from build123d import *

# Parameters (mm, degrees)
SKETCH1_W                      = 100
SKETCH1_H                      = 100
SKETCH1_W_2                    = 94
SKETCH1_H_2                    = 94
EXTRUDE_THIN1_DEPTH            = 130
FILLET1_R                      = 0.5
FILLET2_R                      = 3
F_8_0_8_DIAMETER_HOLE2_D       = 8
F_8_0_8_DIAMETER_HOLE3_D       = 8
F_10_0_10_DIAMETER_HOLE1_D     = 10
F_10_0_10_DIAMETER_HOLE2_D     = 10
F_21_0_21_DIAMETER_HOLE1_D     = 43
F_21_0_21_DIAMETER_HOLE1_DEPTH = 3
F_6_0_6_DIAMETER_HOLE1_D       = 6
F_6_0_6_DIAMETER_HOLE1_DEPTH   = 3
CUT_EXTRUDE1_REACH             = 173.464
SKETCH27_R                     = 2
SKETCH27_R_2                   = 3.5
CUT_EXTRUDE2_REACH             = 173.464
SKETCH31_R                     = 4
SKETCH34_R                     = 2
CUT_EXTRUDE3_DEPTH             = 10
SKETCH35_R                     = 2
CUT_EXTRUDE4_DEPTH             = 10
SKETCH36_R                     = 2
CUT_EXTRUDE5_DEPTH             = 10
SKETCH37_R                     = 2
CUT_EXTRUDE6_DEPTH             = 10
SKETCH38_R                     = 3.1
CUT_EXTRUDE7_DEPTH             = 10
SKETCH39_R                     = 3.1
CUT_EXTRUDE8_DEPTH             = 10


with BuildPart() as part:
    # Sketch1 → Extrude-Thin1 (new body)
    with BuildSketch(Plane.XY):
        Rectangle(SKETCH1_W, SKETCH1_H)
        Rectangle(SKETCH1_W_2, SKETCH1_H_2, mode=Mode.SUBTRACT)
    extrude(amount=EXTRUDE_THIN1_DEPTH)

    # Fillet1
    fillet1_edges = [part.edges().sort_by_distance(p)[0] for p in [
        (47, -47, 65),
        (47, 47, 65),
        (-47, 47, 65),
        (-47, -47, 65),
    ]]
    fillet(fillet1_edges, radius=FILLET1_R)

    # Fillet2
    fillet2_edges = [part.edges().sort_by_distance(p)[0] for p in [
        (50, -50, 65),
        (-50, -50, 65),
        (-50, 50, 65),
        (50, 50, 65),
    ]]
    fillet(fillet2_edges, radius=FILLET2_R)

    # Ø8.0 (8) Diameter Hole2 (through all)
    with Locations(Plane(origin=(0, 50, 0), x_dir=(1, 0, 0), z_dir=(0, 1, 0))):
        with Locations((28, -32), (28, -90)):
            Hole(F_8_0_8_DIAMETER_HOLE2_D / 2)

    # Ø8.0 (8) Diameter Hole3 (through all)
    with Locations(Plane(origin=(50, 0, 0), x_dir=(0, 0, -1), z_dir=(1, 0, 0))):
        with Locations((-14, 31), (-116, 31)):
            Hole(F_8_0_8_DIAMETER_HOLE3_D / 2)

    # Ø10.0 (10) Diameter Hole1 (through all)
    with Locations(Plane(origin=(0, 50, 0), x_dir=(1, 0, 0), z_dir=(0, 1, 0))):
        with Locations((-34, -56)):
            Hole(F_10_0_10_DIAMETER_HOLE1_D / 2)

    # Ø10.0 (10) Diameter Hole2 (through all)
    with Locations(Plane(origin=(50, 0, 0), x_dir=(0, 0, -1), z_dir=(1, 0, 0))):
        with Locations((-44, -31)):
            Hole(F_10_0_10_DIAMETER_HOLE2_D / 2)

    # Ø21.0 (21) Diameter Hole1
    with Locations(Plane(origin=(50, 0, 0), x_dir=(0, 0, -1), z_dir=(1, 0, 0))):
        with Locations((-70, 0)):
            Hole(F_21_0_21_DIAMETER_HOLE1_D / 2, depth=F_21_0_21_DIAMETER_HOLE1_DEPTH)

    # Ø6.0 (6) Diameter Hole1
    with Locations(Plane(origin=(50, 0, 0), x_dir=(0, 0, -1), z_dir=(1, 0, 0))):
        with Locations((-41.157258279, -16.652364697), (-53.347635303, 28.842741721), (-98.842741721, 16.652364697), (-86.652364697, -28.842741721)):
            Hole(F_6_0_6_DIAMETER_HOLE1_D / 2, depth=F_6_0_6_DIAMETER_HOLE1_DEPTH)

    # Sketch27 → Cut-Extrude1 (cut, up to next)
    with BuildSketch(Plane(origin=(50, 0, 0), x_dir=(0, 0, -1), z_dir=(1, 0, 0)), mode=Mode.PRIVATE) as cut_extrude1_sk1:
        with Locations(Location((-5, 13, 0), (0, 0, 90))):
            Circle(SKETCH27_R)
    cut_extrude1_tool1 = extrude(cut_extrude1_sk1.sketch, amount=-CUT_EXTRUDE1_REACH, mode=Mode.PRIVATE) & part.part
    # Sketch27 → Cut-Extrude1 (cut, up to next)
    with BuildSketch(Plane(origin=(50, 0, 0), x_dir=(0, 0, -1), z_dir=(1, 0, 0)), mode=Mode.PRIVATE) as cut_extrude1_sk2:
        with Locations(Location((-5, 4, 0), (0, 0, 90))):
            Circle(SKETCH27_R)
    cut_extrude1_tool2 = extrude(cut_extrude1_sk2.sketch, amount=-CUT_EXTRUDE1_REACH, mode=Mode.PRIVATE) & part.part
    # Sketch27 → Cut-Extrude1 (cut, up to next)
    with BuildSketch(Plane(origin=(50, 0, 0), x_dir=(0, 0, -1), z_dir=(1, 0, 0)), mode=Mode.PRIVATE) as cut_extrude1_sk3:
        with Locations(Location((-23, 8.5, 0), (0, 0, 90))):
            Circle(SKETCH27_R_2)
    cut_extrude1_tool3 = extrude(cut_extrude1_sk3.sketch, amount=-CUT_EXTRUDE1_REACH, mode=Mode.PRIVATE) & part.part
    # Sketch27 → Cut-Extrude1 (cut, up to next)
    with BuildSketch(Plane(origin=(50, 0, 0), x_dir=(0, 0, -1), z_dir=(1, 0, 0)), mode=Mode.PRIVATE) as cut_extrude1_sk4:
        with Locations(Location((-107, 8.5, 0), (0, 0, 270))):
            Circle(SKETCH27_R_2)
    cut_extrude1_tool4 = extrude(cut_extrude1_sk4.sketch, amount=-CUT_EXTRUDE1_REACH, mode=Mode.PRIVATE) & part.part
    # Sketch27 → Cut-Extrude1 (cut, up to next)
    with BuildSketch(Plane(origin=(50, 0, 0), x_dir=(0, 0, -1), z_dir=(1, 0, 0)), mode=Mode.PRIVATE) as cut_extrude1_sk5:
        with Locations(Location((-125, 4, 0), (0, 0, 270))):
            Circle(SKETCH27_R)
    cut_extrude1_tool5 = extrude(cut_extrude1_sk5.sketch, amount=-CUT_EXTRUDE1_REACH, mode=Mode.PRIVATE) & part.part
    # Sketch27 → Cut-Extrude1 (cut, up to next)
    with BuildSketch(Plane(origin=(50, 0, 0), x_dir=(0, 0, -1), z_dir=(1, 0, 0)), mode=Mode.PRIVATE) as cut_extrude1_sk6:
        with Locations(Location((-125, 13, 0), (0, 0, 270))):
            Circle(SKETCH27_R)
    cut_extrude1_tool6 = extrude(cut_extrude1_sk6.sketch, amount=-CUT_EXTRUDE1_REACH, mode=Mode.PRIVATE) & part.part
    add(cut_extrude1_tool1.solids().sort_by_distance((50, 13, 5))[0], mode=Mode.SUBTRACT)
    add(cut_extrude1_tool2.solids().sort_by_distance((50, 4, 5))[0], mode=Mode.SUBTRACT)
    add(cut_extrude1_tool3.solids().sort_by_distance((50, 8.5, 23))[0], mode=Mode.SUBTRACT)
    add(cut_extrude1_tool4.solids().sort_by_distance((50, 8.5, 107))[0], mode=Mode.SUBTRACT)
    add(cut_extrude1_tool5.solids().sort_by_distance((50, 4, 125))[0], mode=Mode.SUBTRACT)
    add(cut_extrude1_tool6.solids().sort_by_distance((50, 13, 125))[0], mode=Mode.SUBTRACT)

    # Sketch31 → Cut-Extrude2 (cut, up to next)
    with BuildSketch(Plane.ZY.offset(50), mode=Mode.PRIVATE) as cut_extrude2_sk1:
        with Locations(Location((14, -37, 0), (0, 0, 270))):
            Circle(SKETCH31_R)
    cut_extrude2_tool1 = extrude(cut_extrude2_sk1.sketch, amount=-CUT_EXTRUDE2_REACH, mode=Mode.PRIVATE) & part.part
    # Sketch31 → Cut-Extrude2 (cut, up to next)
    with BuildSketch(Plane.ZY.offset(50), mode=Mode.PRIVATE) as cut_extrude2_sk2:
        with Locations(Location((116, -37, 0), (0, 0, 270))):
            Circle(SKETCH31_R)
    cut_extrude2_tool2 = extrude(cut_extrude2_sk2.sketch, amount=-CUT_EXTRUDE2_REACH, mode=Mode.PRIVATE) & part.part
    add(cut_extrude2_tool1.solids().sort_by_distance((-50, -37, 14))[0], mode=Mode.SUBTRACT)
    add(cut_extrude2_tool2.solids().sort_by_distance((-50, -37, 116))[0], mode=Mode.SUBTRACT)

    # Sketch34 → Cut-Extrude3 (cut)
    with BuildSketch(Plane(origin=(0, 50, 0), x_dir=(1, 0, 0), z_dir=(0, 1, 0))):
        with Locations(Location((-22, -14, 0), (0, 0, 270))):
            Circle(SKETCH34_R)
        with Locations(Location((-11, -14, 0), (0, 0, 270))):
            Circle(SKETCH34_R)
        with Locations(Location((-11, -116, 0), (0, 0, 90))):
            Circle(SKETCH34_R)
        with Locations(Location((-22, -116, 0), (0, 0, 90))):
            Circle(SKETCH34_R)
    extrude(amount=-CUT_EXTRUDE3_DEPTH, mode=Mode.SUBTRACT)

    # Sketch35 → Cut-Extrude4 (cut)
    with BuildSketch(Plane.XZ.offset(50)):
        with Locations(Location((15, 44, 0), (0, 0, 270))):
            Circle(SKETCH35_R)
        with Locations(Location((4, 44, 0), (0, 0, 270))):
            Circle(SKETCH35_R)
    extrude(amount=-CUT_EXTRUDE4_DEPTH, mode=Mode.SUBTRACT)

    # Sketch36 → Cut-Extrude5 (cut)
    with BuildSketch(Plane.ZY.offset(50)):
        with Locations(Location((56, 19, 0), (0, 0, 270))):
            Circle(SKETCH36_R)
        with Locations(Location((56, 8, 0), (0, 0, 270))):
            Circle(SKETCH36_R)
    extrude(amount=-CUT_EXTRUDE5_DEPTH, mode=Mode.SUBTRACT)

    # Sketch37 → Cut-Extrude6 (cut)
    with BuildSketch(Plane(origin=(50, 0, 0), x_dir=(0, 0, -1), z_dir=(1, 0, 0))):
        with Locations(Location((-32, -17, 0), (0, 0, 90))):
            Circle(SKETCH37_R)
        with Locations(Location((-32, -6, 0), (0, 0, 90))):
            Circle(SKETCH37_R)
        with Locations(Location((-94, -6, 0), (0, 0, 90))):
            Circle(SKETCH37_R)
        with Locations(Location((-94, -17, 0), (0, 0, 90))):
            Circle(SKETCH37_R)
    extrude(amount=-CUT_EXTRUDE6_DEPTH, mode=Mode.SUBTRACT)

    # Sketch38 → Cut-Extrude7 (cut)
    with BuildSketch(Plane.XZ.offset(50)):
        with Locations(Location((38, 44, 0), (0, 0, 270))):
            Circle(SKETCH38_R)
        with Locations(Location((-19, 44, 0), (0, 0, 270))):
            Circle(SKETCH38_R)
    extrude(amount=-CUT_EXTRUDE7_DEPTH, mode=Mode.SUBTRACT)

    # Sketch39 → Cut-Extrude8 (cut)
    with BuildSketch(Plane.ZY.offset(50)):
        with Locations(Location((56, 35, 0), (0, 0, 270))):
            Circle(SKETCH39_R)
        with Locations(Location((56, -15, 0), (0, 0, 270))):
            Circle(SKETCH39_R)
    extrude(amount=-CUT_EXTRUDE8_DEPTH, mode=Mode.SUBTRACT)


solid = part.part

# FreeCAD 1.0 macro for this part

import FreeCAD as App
import Part
import Sketcher


def edges_at(feature, points):
    """Names of the edges that pass closest to the given points."""
    edges = feature.Shape.Edges
    near = lambda p: min(range(len(edges)), key=lambda i: edges[i].distToShape(Part.Vertex(*p))[0])
    return sorted({f"Edge{near(p) + 1}" for p in points})


def add_polygon(sketch, points):
    """Adds a closed chain of lines whose ends are joined by coincident constraints."""
    first, n = sketch.GeometryCount, len(points)
    for a, b in zip(points, points[1:] + points[:1]):
        sketch.addGeometry(Part.LineSegment(App.Vector(*a, 0), App.Vector(*b, 0)), False)
    for i in range(n):
        sketch.addConstraint(Sketcher.Constraint("Coincident", first + i, 2, first + (i + 1) % n, 1))

doc = App.newDocument("Part")
body = doc.addObject("PartDesign::Body", "Body")

# Sketch on XY plane
sketch1 = body.newObject("Sketcher::SketchObject", "Sketch")
sketch1.AttachmentSupport = (doc.getObject("XY_Plane"), [""])
sketch1.MapMode = "FlatFace"
add_polygon(sketch1, [(-50, 50), (-50, -50), (50, -50), (50, 50)])  # lines 0-3
add_polygon(sketch1, [(47, -47), (-47, -47), (-47, 47), (47, 47)])  # lines 4-7
sketch1.addConstraint([
    Sketcher.Constraint("Vertical", 0),
    Sketcher.Constraint("Horizontal", 1),
    Sketcher.Constraint("Vertical", 2),
    Sketcher.Constraint("Horizontal", 3),
    Sketcher.Constraint("Horizontal", 4),
    Sketcher.Constraint("Vertical", 5),
    Sketcher.Constraint("Horizontal", 6),
    Sketcher.Constraint("Vertical", 7),
    Sketcher.Constraint("Symmetric", 0, 2, 2, 2, -1, 1),
    Sketcher.Constraint("Symmetric", 4, 2, 6, 2, -1, 1),
    Sketcher.Constraint("Equal", 3, 0),
    Sketcher.Constraint("Equal", 6, 5),
    Sketcher.Constraint("DistanceX", 1, 1, 1, 2, 100.0),
    Sketcher.Constraint("DistanceX", 4, 2, 4, 1, 94.0),
])
pad1 = body.newObject("PartDesign::Pad", "Pad")
pad1.Profile = sketch1
pad1.Length = 130
doc.recompute()

fillet = body.newObject("PartDesign::Fillet", "Fillet")
fillet.Base = (pad1, edges_at(pad1, [
    (47, -47, 65),
    (47, 47, 65),
    (-47, 47, 65),
    (-47, -47, 65),
]))
fillet.Radius = 0.5
doc.recompute()

fillet2 = body.newObject("PartDesign::Fillet", "Fillet001")
fillet2.Base = (fillet, edges_at(fillet, [
    (50, -50, 65),
    (-50, -50, 65),
    (-50, 50, 65),
    (50, 50, 65),
]))
fillet2.Radius = 3

# Sketch on XZ plane
sketch2 = body.newObject("Sketcher::SketchObject", "Sketch001")
sketch2.AttachmentSupport = (doc.getObject("XZ_Plane"), [""])
sketch2.MapMode = "FlatFace"
sketch2.AttachmentOffset = App.Placement(App.Vector(0, 0, -50), App.Rotation())
sketch2.addGeometry([
    Part.Circle(App.Vector(28, 32, 0), App.Vector(0, 0, 1), 4),
    Part.Circle(App.Vector(28, 90, 0), App.Vector(0, 0, 1), 4),
], False)
sketch2.addConstraint([
    Sketcher.Constraint("Equal", 0, 1),
    Sketcher.Constraint("Vertical", 0, 3, 1, 3),
    Sketcher.Constraint("Diameter", 0, 8.0),
    Sketcher.Constraint("DistanceX", -1, 1, 0, 3, 28.0),
    Sketcher.Constraint("DistanceY", -1, 1, 0, 3, 32.0),
    Sketcher.Constraint("DistanceY", -1, 1, 1, 3, 90.0),
])
doc.recompute()
hole = body.newObject("PartDesign::Hole", "Hole")
hole.Profile = sketch2
hole.ThreadType = "None"
hole.Diameter = 8
hole.DepthType = "ThroughAll"
hole.Reversed = True

# Sketch on YZ plane
sketch3 = body.newObject("Sketcher::SketchObject", "Sketch002")
sketch3.AttachmentSupport = (doc.getObject("YZ_Plane"), [""])
sketch3.MapMode = "FlatFace"
sketch3.AttachmentOffset = App.Placement(App.Vector(0, 0, 50), App.Rotation())
sketch3.addGeometry([
    Part.Circle(App.Vector(31, 14, 0), App.Vector(0, 0, 1), 4),
    Part.Circle(App.Vector(31, 116, 0), App.Vector(0, 0, 1), 4),
], False)
sketch3.addConstraint([
    Sketcher.Constraint("Equal", 0, 1),
    Sketcher.Constraint("Vertical", 0, 3, 1, 3),
    Sketcher.Constraint("Diameter", 0, 8.0),
    Sketcher.Constraint("DistanceX", -1, 1, 0, 3, 31.0),
    Sketcher.Constraint("DistanceY", -1, 1, 0, 3, 14.0),
    Sketcher.Constraint("DistanceY", -1, 1, 1, 3, 116.0),
])
doc.recompute()
hole2 = body.newObject("PartDesign::Hole", "Hole001")
hole2.Profile = sketch3
hole2.ThreadType = "None"
hole2.Diameter = 8
hole2.DepthType = "ThroughAll"

# Sketch on XZ plane
sketch4 = body.newObject("Sketcher::SketchObject", "Sketch003")
sketch4.AttachmentSupport = (doc.getObject("XZ_Plane"), [""])
sketch4.MapMode = "FlatFace"
sketch4.AttachmentOffset = App.Placement(App.Vector(0, 0, -50), App.Rotation())
sketch4.addGeometry(Part.Circle(App.Vector(-34, 56, 0), App.Vector(0, 0, 1), 5), False)
sketch4.addConstraint([
    Sketcher.Constraint("Diameter", 0, 10.0),
    Sketcher.Constraint("DistanceX", 0, 3, -1, 1, 34.0),
    Sketcher.Constraint("DistanceY", -1, 1, 0, 3, 56.0),
])
doc.recompute()
hole3 = body.newObject("PartDesign::Hole", "Hole002")
hole3.Profile = sketch4
hole3.ThreadType = "None"
hole3.Diameter = 10
hole3.DepthType = "ThroughAll"
hole3.Reversed = True

# Sketch on YZ plane
sketch5 = body.newObject("Sketcher::SketchObject", "Sketch004")
sketch5.AttachmentSupport = (doc.getObject("YZ_Plane"), [""])
sketch5.MapMode = "FlatFace"
sketch5.AttachmentOffset = App.Placement(App.Vector(0, 0, 50), App.Rotation())
sketch5.addGeometry(Part.Circle(App.Vector(-31, 44, 0), App.Vector(0, 0, 1), 5), False)
sketch5.addConstraint([
    Sketcher.Constraint("Diameter", 0, 10.0),
    Sketcher.Constraint("DistanceX", 0, 3, -1, 1, 31.0),
    Sketcher.Constraint("DistanceY", -1, 1, 0, 3, 44.0),
])
doc.recompute()
hole4 = body.newObject("PartDesign::Hole", "Hole003")
hole4.Profile = sketch5
hole4.ThreadType = "None"
hole4.Diameter = 10
hole4.DepthType = "ThroughAll"

# Sketch on YZ plane
sketch6 = body.newObject("Sketcher::SketchObject", "Sketch005")
sketch6.AttachmentSupport = (doc.getObject("YZ_Plane"), [""])
sketch6.MapMode = "FlatFace"
sketch6.AttachmentOffset = App.Placement(App.Vector(0, 0, 50), App.Rotation())
sketch6.addGeometry(Part.Circle(App.Vector(0, 70, 0), App.Vector(0, 0, 1), 21.5), False)
sketch6.addConstraint([
    Sketcher.Constraint("PointOnObject", 0, 3, -2),
    Sketcher.Constraint("Diameter", 0, 43.0),
    Sketcher.Constraint("DistanceY", -1, 1, 0, 3, 70.0),
])
doc.recompute()
hole5 = body.newObject("PartDesign::Hole", "Hole004")
hole5.Profile = sketch6
hole5.ThreadType = "None"
hole5.Diameter = 43
hole5.DepthType = "Dimension"
hole5.Depth = 3
hole5.DrillPoint = "Flat"

# Sketch on YZ plane
sketch7 = body.newObject("Sketcher::SketchObject", "Sketch006")
sketch7.AttachmentSupport = (doc.getObject("YZ_Plane"), [""])
sketch7.MapMode = "FlatFace"
sketch7.AttachmentOffset = App.Placement(App.Vector(0, 0, 50), App.Rotation())
sketch7.addGeometry([
    Part.Circle(App.Vector(-16.652365, 41.157258, 0), App.Vector(0, 0, 1), 3),
    Part.Circle(App.Vector(28.842742, 53.347635, 0), App.Vector(0, 0, 1), 3),
    Part.Circle(App.Vector(16.652365, 98.842742, 0), App.Vector(0, 0, 1), 3),
    Part.Circle(App.Vector(-28.842742, 86.652365, 0), App.Vector(0, 0, 1), 3),
], False)
sketch7.addConstraint([
    Sketcher.Constraint("Equal", 0, 1),
    Sketcher.Constraint("Equal", 1, 2),
    Sketcher.Constraint("Equal", 2, 3),
    Sketcher.Constraint("Diameter", 0, 6.0),
    Sketcher.Constraint("DistanceY", -1, 1, 0, 3, 41.157258),
    Sketcher.Constraint("DistanceX", -1, 1, 1, 3, 28.842742),
    Sketcher.Constraint("DistanceY", -1, 1, 2, 3, 98.842742),
    Sketcher.Constraint("DistanceX", 3, 3, -1, 1, 28.842742),
    Sketcher.Constraint("DistanceX", 0, 3, 2, 3, 33.304729),
    Sketcher.Constraint("DistanceY", 1, 3, 3, 3, 33.304729),
    Sketcher.Constraint("DistanceX", 0, 3, -1, 1, 16.652365),
    Sketcher.Constraint("DistanceY", -1, 1, 1, 3, 53.347635),
])
doc.recompute()
hole6 = body.newObject("PartDesign::Hole", "Hole005")
hole6.Profile = sketch7
hole6.ThreadType = "None"
hole6.Diameter = 6
hole6.DepthType = "Dimension"
hole6.Depth = 3
hole6.DrillPoint = "Flat"

# Sketch on YZ plane
sketch8 = body.newObject("Sketcher::SketchObject", "Sketch007")
sketch8.AttachmentSupport = (doc.getObject("YZ_Plane"), [""])
sketch8.MapMode = "FlatFace"
sketch8.AttachmentOffset = App.Placement(App.Vector(0, 0, 50), App.Rotation())
sketch8.addGeometry(Part.Circle(App.Vector(13, 5, 0), App.Vector(0, 0, 1), 2), False)
sketch8.addConstraint([
    Sketcher.Constraint("Diameter", 0, 4.0),
    Sketcher.Constraint("DistanceX", -1, 1, 0, 3, 13.0),
    Sketcher.Constraint("DistanceY", -1, 1, 0, 3, 5.0),
])
pocket1 = body.newObject("PartDesign::Pocket", "Pocket")
pocket1.Profile = sketch8
pocket1.Type = "UpToFirst"

# Sketch on YZ plane
sketch9 = body.newObject("Sketcher::SketchObject", "Sketch008")
sketch9.AttachmentSupport = (doc.getObject("YZ_Plane"), [""])
sketch9.MapMode = "FlatFace"
sketch9.AttachmentOffset = App.Placement(App.Vector(0, 0, 50), App.Rotation())
sketch9.addGeometry(Part.Circle(App.Vector(4, 5, 0), App.Vector(0, 0, 1), 2), False)
sketch9.addConstraint([
    Sketcher.Constraint("Diameter", 0, 4.0),
    Sketcher.Constraint("DistanceX", -1, 1, 0, 3, 4.0),
    Sketcher.Constraint("DistanceY", -1, 1, 0, 3, 5.0),
])
pocket2 = body.newObject("PartDesign::Pocket", "Pocket001")
pocket2.Profile = sketch9
pocket2.Type = "UpToFirst"

# Sketch on YZ plane
sketch10 = body.newObject("Sketcher::SketchObject", "Sketch009")
sketch10.AttachmentSupport = (doc.getObject("YZ_Plane"), [""])
sketch10.MapMode = "FlatFace"
sketch10.AttachmentOffset = App.Placement(App.Vector(0, 0, 50), App.Rotation())
sketch10.addGeometry(Part.Circle(App.Vector(8.5, 23, 0), App.Vector(0, 0, 1), 3.5), False)
sketch10.addConstraint([
    Sketcher.Constraint("Diameter", 0, 7.0),
    Sketcher.Constraint("DistanceY", -1, 1, 0, 3, 23.0),
    Sketcher.Constraint("DistanceX", -1, 1, 0, 3, 8.5),
])
pocket3 = body.newObject("PartDesign::Pocket", "Pocket002")
pocket3.Profile = sketch10
pocket3.Type = "UpToFirst"

# Sketch on YZ plane
sketch11 = body.newObject("Sketcher::SketchObject", "Sketch010")
sketch11.AttachmentSupport = (doc.getObject("YZ_Plane"), [""])
sketch11.MapMode = "FlatFace"
sketch11.AttachmentOffset = App.Placement(App.Vector(0, 0, 50), App.Rotation())
sketch11.addGeometry(Part.Circle(App.Vector(8.5, 107, 0), App.Vector(0, 0, 1), 3.5), False)
sketch11.addConstraint([
    Sketcher.Constraint("Diameter", 0, 7.0),
    Sketcher.Constraint("DistanceY", -1, 1, 0, 3, 107.0),
    Sketcher.Constraint("DistanceX", -1, 1, 0, 3, 8.5),
])
pocket4 = body.newObject("PartDesign::Pocket", "Pocket003")
pocket4.Profile = sketch11
pocket4.Type = "UpToFirst"

# Sketch on YZ plane
sketch12 = body.newObject("Sketcher::SketchObject", "Sketch011")
sketch12.AttachmentSupport = (doc.getObject("YZ_Plane"), [""])
sketch12.MapMode = "FlatFace"
sketch12.AttachmentOffset = App.Placement(App.Vector(0, 0, 50), App.Rotation())
sketch12.addGeometry(Part.Circle(App.Vector(4, 125, 0), App.Vector(0, 0, 1), 2), False)
sketch12.addConstraint([
    Sketcher.Constraint("Diameter", 0, 4.0),
    Sketcher.Constraint("DistanceX", -1, 1, 0, 3, 4.0),
    Sketcher.Constraint("DistanceY", -1, 1, 0, 3, 125.0),
])
pocket5 = body.newObject("PartDesign::Pocket", "Pocket004")
pocket5.Profile = sketch12
pocket5.Type = "UpToFirst"

# Sketch on YZ plane
sketch13 = body.newObject("Sketcher::SketchObject", "Sketch012")
sketch13.AttachmentSupport = (doc.getObject("YZ_Plane"), [""])
sketch13.MapMode = "FlatFace"
sketch13.AttachmentOffset = App.Placement(App.Vector(0, 0, 50), App.Rotation())
sketch13.addGeometry(Part.Circle(App.Vector(13, 125, 0), App.Vector(0, 0, 1), 2), False)
sketch13.addConstraint([
    Sketcher.Constraint("Diameter", 0, 4.0),
    Sketcher.Constraint("DistanceX", -1, 1, 0, 3, 13.0),
    Sketcher.Constraint("DistanceY", -1, 1, 0, 3, 125.0),
])
pocket6 = body.newObject("PartDesign::Pocket", "Pocket005")
pocket6.Profile = sketch13
pocket6.Type = "UpToFirst"

# Sketch on YZ plane
sketch14 = body.newObject("Sketcher::SketchObject", "Sketch013")
sketch14.AttachmentSupport = (doc.getObject("YZ_Plane"), [""])
sketch14.MapMode = "FlatFace"
sketch14.AttachmentOffset = App.Placement(App.Vector(0, 0, -50), App.Rotation())
sketch14.addGeometry(Part.Circle(App.Vector(-37, 14, 0), App.Vector(0, 0, 1), 4), False)
sketch14.addConstraint([
    Sketcher.Constraint("Diameter", 0, 8.0),
    Sketcher.Constraint("DistanceX", 0, 3, -1, 1, 37.0),
    Sketcher.Constraint("DistanceY", -1, 1, 0, 3, 14.0),
])
pocket7 = body.newObject("PartDesign::Pocket", "Pocket006")
pocket7.Profile = sketch14
pocket7.Type = "UpToFirst"
pocket7.Reversed = True

# Sketch on YZ plane
sketch15 = body.newObject("Sketcher::SketchObject", "Sketch014")
sketch15.AttachmentSupport = (doc.getObject("YZ_Plane"), [""])
sketch15.MapMode = "FlatFace"
sketch15.AttachmentOffset = App.Placement(App.Vector(0, 0, -50), App.Rotation())
sketch15.addGeometry(Part.Circle(App.Vector(-37, 116, 0), App.Vector(0, 0, 1), 4), False)
sketch15.addConstraint([
    Sketcher.Constraint("Diameter", 0, 8.0),
    Sketcher.Constraint("DistanceX", 0, 3, -1, 1, 37.0),
    Sketcher.Constraint("DistanceY", -1, 1, 0, 3, 116.0),
])
pocket8 = body.newObject("PartDesign::Pocket", "Pocket007")
pocket8.Profile = sketch15
pocket8.Type = "UpToFirst"
pocket8.Reversed = True

# Sketch on XZ plane
sketch16 = body.newObject("Sketcher::SketchObject", "Sketch015")
sketch16.AttachmentSupport = (doc.getObject("XZ_Plane"), [""])
sketch16.MapMode = "FlatFace"
sketch16.AttachmentOffset = App.Placement(App.Vector(0, 0, -50), App.Rotation())
sketch16.addGeometry([
    Part.Circle(App.Vector(-22, 14, 0), App.Vector(0, 0, 1), 2),
    Part.Circle(App.Vector(-11, 14, 0), App.Vector(0, 0, 1), 2),
    Part.Circle(App.Vector(-11, 116, 0), App.Vector(0, 0, 1), 2),
    Part.Circle(App.Vector(-22, 116, 0), App.Vector(0, 0, 1), 2),
], False)
sketch16.addConstraint([
    Sketcher.Constraint("Equal", 0, 1),
    Sketcher.Constraint("Equal", 1, 2),
    Sketcher.Constraint("Equal", 2, 3),
    Sketcher.Constraint("Horizontal", 0, 3, 1, 3),
    Sketcher.Constraint("Horizontal", 2, 3, 3, 3),
    Sketcher.Constraint("Vertical", 1, 3, 2, 3),
    Sketcher.Constraint("Vertical", 0, 3, 3, 3),
    Sketcher.Constraint("Diameter", 0, 4.0),
    Sketcher.Constraint("DistanceX", 0, 3, -1, 1, 22.0),
    Sketcher.Constraint("DistanceY", -1, 1, 0, 3, 14.0),
    Sketcher.Constraint("DistanceX", 1, 3, -1, 1, 11.0),
    Sketcher.Constraint("DistanceY", -1, 1, 2, 3, 116.0),
])
pocket9 = body.newObject("PartDesign::Pocket", "Pocket008")
pocket9.Profile = sketch16
pocket9.Length = 10
pocket9.Reversed = True

# Sketch on XZ plane
sketch17 = body.newObject("Sketcher::SketchObject", "Sketch016")
sketch17.AttachmentSupport = (doc.getObject("XZ_Plane"), [""])
sketch17.MapMode = "FlatFace"
sketch17.AttachmentOffset = App.Placement(App.Vector(0, 0, 50), App.Rotation())
sketch17.addGeometry([
    Part.Circle(App.Vector(15, 44, 0), App.Vector(0, 0, 1), 2),
    Part.Circle(App.Vector(4, 44, 0), App.Vector(0, 0, 1), 2),
], False)
sketch17.addConstraint([
    Sketcher.Constraint("Equal", 0, 1),
    Sketcher.Constraint("Horizontal", 0, 3, 1, 3),
    Sketcher.Constraint("Diameter", 0, 4.0),
    Sketcher.Constraint("DistanceX", -1, 1, 0, 3, 15.0),
    Sketcher.Constraint("DistanceY", -1, 1, 0, 3, 44.0),
    Sketcher.Constraint("DistanceX", -1, 1, 1, 3, 4.0),
])
pocket10 = body.newObject("PartDesign::Pocket", "Pocket009")
pocket10.Profile = sketch17
pocket10.Length = 10

# Sketch on YZ plane
sketch18 = body.newObject("Sketcher::SketchObject", "Sketch017")
sketch18.AttachmentSupport = (doc.getObject("YZ_Plane"), [""])
sketch18.MapMode = "FlatFace"
sketch18.AttachmentOffset = App.Placement(App.Vector(0, 0, -50), App.Rotation())
sketch18.addGeometry([
    Part.Circle(App.Vector(19, 56, 0), App.Vector(0, 0, 1), 2),
    Part.Circle(App.Vector(8, 56, 0), App.Vector(0, 0, 1), 2),
], False)
sketch18.addConstraint([
    Sketcher.Constraint("Equal", 0, 1),
    Sketcher.Constraint("Horizontal", 0, 3, 1, 3),
    Sketcher.Constraint("Diameter", 0, 4.0),
    Sketcher.Constraint("DistanceX", -1, 1, 0, 3, 19.0),
    Sketcher.Constraint("DistanceY", -1, 1, 0, 3, 56.0),
    Sketcher.Constraint("DistanceX", -1, 1, 1, 3, 8.0),
])
pocket11 = body.newObject("PartDesign::Pocket", "Pocket010")
pocket11.Profile = sketch18
pocket11.Length = 10
pocket11.Reversed = True

# Sketch on YZ plane
sketch19 = body.newObject("Sketcher::SketchObject", "Sketch018")
sketch19.AttachmentSupport = (doc.getObject("YZ_Plane"), [""])
sketch19.MapMode = "FlatFace"
sketch19.AttachmentOffset = App.Placement(App.Vector(0, 0, 50), App.Rotation())
sketch19.addGeometry([
    Part.Circle(App.Vector(-17, 32, 0), App.Vector(0, 0, 1), 2),
    Part.Circle(App.Vector(-6, 32, 0), App.Vector(0, 0, 1), 2),
    Part.Circle(App.Vector(-6, 94, 0), App.Vector(0, 0, 1), 2),
    Part.Circle(App.Vector(-17, 94, 0), App.Vector(0, 0, 1), 2),
], False)
sketch19.addConstraint([
    Sketcher.Constraint("Equal", 0, 1),
    Sketcher.Constraint("Equal", 1, 2),
    Sketcher.Constraint("Equal", 2, 3),
    Sketcher.Constraint("Horizontal", 0, 3, 1, 3),
    Sketcher.Constraint("Horizontal", 2, 3, 3, 3),
    Sketcher.Constraint("Vertical", 1, 3, 2, 3),
    Sketcher.Constraint("Vertical", 0, 3, 3, 3),
    Sketcher.Constraint("Diameter", 0, 4.0),
    Sketcher.Constraint("DistanceX", 0, 3, -1, 1, 17.0),
    Sketcher.Constraint("DistanceY", -1, 1, 0, 3, 32.0),
    Sketcher.Constraint("DistanceX", 1, 3, -1, 1, 6.0),
    Sketcher.Constraint("DistanceY", -1, 1, 2, 3, 94.0),
])
pocket12 = body.newObject("PartDesign::Pocket", "Pocket011")
pocket12.Profile = sketch19
pocket12.Length = 10

# Sketch on XZ plane
sketch20 = body.newObject("Sketcher::SketchObject", "Sketch019")
sketch20.AttachmentSupport = (doc.getObject("XZ_Plane"), [""])
sketch20.MapMode = "FlatFace"
sketch20.AttachmentOffset = App.Placement(App.Vector(0, 0, 50), App.Rotation())
sketch20.addGeometry([
    Part.Circle(App.Vector(38, 44, 0), App.Vector(0, 0, 1), 3.1),
    Part.Circle(App.Vector(-19, 44, 0), App.Vector(0, 0, 1), 3.1),
], False)
sketch20.addConstraint([
    Sketcher.Constraint("Equal", 0, 1),
    Sketcher.Constraint("Horizontal", 0, 3, 1, 3),
    Sketcher.Constraint("Diameter", 0, 6.2),
    Sketcher.Constraint("DistanceX", -1, 1, 0, 3, 38.0),
    Sketcher.Constraint("DistanceY", -1, 1, 0, 3, 44.0),
    Sketcher.Constraint("DistanceX", 1, 3, -1, 1, 19.0),
])
pocket13 = body.newObject("PartDesign::Pocket", "Pocket012")
pocket13.Profile = sketch20
pocket13.Length = 10

# Sketch on YZ plane
sketch21 = body.newObject("Sketcher::SketchObject", "Sketch020")
sketch21.AttachmentSupport = (doc.getObject("YZ_Plane"), [""])
sketch21.MapMode = "FlatFace"
sketch21.AttachmentOffset = App.Placement(App.Vector(0, 0, -50), App.Rotation())
sketch21.addGeometry([
    Part.Circle(App.Vector(35, 56, 0), App.Vector(0, 0, 1), 3.1),
    Part.Circle(App.Vector(-15, 56, 0), App.Vector(0, 0, 1), 3.1),
], False)
sketch21.addConstraint([
    Sketcher.Constraint("Equal", 0, 1),
    Sketcher.Constraint("Horizontal", 0, 3, 1, 3),
    Sketcher.Constraint("Diameter", 0, 6.2),
    Sketcher.Constraint("DistanceX", -1, 1, 0, 3, 35.0),
    Sketcher.Constraint("DistanceY", -1, 1, 0, 3, 56.0),
    Sketcher.Constraint("DistanceX", 1, 3, -1, 1, 15.0),
])
pocket14 = body.newObject("PartDesign::Pocket", "Pocket013")
pocket14.Profile = sketch21
pocket14.Length = 10
pocket14.Reversed = True

doc.recompute()
